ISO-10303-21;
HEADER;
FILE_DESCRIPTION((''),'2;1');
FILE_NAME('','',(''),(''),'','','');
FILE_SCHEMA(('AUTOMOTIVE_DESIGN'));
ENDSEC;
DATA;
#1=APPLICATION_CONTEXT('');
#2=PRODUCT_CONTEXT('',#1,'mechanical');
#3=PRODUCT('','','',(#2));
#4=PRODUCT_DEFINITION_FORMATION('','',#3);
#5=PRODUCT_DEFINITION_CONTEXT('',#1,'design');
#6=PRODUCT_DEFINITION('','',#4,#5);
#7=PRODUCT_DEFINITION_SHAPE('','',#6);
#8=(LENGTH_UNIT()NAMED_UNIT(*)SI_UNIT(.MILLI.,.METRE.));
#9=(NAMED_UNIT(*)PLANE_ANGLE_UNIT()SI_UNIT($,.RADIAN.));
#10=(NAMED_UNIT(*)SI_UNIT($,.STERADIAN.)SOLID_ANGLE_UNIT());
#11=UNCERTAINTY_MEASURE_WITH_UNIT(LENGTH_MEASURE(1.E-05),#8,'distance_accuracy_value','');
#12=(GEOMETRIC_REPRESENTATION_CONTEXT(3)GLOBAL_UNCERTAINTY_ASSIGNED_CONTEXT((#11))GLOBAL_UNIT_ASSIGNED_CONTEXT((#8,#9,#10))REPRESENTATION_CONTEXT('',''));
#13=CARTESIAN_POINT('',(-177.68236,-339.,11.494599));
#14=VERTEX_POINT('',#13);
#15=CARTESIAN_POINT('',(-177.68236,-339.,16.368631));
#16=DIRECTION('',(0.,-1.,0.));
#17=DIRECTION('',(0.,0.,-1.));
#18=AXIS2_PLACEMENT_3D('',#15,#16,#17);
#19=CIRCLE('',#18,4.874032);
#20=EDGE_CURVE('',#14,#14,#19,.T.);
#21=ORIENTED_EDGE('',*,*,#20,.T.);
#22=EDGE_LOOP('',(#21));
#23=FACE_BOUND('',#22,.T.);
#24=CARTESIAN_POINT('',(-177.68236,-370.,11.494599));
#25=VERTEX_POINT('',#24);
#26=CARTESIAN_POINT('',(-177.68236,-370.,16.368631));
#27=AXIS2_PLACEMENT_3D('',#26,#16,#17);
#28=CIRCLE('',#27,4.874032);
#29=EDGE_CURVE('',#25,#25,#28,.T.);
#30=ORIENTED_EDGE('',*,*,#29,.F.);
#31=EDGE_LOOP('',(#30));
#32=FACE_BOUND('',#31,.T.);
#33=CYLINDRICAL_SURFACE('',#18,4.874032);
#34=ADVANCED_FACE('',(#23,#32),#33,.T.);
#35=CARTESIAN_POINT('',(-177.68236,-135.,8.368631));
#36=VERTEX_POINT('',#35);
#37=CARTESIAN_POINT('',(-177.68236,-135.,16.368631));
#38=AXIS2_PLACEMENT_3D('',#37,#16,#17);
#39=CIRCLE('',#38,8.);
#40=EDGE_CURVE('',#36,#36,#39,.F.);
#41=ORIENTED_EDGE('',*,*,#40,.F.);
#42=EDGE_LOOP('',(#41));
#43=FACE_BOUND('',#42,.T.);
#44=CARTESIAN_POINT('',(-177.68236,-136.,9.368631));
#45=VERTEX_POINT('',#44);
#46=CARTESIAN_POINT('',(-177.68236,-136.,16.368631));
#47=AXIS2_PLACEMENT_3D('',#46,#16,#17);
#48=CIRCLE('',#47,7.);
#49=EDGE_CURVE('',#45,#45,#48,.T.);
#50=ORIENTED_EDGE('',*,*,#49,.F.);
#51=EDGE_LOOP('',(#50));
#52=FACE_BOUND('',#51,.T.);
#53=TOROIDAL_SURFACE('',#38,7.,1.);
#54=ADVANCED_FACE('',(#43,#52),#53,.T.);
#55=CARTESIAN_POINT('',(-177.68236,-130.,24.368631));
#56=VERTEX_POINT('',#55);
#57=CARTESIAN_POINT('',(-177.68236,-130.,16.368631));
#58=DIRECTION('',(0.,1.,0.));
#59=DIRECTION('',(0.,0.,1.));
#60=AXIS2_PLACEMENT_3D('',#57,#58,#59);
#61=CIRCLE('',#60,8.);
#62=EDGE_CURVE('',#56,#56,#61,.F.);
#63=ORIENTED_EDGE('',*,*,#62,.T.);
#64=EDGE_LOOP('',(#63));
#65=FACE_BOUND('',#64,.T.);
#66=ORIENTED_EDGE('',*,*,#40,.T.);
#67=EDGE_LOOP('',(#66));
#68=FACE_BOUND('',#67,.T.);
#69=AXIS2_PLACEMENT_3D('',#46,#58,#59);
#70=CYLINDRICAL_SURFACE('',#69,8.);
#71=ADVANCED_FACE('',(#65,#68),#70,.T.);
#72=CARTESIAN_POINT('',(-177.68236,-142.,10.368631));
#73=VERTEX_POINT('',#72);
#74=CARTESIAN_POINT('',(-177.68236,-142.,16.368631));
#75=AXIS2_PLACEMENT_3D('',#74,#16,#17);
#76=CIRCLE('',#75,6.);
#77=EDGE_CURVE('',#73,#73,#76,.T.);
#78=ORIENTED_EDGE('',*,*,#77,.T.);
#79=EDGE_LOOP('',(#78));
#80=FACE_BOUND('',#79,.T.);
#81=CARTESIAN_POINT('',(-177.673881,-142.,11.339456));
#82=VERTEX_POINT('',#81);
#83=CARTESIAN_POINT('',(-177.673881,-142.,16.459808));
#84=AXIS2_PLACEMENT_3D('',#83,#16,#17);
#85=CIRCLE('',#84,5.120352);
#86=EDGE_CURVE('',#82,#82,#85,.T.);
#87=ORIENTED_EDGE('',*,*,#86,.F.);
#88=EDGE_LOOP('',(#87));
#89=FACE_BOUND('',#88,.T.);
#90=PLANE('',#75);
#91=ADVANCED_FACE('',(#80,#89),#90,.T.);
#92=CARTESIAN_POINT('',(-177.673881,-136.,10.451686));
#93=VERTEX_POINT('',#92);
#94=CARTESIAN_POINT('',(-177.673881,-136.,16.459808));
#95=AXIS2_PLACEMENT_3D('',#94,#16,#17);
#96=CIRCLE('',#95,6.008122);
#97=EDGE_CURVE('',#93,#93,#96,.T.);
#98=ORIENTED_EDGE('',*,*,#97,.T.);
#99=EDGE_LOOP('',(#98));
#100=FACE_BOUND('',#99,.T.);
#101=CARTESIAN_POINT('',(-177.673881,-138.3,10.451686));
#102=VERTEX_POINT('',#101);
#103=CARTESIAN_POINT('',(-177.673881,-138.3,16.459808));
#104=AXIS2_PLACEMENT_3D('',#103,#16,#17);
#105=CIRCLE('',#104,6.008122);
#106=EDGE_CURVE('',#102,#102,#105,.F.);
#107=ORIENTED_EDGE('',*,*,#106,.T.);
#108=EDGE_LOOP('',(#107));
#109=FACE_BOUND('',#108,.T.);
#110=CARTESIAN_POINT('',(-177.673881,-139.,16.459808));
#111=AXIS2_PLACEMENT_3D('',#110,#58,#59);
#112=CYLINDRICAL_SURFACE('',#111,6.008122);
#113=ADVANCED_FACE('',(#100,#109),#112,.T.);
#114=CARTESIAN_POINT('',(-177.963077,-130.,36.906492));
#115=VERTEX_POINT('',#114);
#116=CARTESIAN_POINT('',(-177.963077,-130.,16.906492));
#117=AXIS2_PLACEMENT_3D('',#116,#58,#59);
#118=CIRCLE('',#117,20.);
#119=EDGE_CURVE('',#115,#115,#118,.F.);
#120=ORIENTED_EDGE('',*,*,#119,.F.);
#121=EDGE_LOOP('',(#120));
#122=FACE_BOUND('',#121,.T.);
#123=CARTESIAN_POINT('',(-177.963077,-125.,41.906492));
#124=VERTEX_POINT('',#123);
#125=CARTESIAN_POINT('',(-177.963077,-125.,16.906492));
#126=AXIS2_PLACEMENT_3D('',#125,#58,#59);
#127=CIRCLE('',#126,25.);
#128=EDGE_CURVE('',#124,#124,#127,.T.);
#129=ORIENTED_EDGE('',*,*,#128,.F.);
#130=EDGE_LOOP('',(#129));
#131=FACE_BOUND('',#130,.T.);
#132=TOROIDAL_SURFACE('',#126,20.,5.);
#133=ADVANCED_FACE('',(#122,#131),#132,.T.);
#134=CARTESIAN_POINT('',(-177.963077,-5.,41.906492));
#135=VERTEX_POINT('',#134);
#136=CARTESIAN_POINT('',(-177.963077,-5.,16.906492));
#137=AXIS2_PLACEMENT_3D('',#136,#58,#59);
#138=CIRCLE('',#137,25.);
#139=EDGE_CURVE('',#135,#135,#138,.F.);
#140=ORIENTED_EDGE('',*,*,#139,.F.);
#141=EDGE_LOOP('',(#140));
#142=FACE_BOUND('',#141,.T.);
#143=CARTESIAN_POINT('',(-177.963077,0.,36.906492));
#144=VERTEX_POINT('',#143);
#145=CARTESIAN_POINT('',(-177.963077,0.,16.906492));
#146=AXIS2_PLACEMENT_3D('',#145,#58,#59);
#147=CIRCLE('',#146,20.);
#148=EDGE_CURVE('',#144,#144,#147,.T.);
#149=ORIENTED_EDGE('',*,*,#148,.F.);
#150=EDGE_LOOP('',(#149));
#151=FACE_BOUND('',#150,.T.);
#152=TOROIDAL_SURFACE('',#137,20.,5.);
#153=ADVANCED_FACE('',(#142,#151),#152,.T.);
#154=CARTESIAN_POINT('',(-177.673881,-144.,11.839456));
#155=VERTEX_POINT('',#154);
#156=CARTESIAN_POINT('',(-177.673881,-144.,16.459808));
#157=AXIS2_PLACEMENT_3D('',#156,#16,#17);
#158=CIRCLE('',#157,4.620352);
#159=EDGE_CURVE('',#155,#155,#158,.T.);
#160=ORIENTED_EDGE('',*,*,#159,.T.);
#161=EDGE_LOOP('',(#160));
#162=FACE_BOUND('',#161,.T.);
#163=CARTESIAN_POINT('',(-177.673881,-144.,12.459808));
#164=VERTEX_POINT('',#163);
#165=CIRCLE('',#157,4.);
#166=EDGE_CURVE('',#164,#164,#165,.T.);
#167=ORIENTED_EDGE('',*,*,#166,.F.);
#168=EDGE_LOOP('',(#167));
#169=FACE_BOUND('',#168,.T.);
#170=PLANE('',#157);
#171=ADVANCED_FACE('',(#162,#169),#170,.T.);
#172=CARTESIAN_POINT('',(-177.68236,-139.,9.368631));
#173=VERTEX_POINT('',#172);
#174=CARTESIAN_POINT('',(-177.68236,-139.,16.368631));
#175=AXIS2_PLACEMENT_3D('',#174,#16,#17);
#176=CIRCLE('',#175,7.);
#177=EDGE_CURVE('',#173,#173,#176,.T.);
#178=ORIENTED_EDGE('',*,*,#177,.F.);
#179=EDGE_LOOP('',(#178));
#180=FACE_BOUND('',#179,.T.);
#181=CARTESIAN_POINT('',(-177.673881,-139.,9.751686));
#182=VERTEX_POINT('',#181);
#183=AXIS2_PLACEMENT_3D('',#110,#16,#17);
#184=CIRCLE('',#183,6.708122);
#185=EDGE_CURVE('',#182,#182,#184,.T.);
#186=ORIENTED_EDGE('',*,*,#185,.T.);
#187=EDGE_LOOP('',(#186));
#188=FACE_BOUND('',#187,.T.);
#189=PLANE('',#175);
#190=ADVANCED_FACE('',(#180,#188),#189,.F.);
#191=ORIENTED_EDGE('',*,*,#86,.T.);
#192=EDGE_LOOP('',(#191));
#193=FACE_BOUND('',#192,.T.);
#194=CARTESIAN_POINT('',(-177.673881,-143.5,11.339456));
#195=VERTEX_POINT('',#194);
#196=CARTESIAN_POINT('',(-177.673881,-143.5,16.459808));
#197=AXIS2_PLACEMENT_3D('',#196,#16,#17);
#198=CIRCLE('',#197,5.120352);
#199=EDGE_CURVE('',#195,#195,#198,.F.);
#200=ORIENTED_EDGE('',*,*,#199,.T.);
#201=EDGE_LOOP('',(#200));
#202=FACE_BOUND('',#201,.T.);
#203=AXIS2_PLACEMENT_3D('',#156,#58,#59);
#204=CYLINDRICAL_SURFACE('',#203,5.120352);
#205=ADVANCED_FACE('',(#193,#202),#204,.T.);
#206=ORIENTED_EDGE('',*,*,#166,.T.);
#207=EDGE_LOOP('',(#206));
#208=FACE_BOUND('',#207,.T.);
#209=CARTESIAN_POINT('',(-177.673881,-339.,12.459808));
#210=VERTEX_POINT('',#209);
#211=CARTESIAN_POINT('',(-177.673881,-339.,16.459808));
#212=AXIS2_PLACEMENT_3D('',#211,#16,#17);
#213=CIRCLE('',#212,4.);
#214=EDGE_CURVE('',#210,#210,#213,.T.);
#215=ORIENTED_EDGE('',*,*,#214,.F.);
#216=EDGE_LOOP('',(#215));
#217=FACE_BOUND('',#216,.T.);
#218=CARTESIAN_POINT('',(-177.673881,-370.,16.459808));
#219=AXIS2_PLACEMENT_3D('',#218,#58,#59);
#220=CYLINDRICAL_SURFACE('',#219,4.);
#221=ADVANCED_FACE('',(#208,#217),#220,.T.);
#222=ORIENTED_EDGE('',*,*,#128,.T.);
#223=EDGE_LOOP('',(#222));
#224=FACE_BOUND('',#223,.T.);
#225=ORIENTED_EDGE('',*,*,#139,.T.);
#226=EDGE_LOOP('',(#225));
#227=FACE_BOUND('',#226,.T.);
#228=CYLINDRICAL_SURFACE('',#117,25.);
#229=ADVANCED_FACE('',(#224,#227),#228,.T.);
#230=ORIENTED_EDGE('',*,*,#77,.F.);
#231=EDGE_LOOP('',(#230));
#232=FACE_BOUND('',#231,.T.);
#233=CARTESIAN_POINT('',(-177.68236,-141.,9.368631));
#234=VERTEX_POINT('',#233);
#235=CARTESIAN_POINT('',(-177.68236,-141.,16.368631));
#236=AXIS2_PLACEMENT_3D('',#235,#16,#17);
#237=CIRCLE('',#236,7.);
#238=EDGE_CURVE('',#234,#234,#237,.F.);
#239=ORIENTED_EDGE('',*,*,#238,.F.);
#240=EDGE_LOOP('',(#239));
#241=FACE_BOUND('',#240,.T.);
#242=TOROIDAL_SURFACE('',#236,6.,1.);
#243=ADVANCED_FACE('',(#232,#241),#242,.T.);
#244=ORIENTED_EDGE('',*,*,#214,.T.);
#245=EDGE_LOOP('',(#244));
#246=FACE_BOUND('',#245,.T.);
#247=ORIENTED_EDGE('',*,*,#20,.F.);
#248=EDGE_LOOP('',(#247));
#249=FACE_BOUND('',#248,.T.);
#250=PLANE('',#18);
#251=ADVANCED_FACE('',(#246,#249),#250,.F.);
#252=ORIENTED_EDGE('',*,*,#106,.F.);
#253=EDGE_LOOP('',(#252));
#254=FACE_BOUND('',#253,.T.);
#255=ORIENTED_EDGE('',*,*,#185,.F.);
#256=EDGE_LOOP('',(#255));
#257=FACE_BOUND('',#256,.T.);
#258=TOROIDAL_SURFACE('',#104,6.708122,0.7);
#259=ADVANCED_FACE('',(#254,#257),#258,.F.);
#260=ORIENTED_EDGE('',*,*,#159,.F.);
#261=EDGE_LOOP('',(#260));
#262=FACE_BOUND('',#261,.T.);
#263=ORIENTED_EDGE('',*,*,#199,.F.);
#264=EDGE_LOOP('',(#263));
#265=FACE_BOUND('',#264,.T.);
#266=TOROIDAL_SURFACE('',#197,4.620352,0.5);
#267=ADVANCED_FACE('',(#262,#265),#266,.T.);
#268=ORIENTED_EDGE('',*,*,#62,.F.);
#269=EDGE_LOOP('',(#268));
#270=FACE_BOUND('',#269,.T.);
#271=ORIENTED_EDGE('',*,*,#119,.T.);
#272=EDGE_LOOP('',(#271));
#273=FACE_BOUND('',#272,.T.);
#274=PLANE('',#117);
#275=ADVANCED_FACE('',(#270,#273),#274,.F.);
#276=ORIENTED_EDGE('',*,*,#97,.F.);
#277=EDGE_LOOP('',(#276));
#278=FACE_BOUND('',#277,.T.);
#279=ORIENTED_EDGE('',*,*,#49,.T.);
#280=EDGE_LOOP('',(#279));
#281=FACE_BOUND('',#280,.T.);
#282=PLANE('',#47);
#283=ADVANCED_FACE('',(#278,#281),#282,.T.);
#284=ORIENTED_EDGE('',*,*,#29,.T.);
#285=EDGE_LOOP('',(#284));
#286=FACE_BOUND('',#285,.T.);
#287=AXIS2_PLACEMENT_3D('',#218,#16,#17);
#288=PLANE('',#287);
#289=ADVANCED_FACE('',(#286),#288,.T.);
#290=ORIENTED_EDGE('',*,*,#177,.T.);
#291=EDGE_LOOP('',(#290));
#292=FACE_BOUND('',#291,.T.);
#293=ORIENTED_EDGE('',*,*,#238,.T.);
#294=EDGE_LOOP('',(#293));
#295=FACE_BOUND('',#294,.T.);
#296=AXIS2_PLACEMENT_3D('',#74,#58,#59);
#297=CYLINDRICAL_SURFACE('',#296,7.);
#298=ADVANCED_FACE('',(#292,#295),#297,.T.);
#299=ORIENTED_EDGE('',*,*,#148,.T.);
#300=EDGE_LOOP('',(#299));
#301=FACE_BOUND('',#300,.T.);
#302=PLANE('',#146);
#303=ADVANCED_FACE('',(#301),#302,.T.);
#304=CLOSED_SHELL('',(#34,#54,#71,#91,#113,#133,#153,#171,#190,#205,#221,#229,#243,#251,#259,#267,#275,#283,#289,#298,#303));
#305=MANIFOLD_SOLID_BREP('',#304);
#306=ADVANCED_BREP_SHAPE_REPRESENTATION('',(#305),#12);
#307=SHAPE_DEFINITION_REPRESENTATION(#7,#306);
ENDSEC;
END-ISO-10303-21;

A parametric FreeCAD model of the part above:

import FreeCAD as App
import Part
import Sketcher
from FreeCAD import Vector


def edges_at(feature, points):
    """Names of the edges that pass closest to the given points."""
    edges = feature.Shape.Edges
    near = lambda p: min(range(len(edges)), key=lambda i: edges[i].distToShape(Part.Vertex(*p))[0])
    return sorted({f"Edge{near(p) + 1}" for p in points})

doc = App.newDocument("Part")
body = doc.addObject("PartDesign::Body", "Body")

# Sketch on XZ plane
sketch1 = doc.addObject("Sketcher::SketchObject", "Sketch")
body.addObject(sketch1)
sketch1.AttachmentSupport = (doc.XZ_Plane, [""])
sketch1.MapMode = "FlatFace"
sketch1.addGeometry(Part.Circle(Vector(-178, 17, 0), Vector(0, 0, 1), 25), False)
sketch1.addConstraint(Sketcher.Constraint("Diameter", 0, 50.0))
sketch1.addConstraint(Sketcher.Constraint("DistanceX", 0, 3, -1, 1, 177.963077))
sketch1.addConstraint(Sketcher.Constraint("DistanceY", -1, 1, 0, 3, 16.906492))
pad1 = doc.addObject("PartDesign::Pad", "Pad")
body.addObject(pad1)
pad1.Profile = sketch1
pad1.Length = 130

# Sketch on XZ plane
sketch2 = doc.addObject("Sketcher::SketchObject", "Sketch001")
body.addObject(sketch2)
sketch2.AttachmentSupport = (doc.XZ_Plane, [""])
sketch2.MapMode = "FlatFace"
sketch2.AttachmentOffset = App.Placement(Vector(0, 0, 130), App.Rotation())
sketch2.addGeometry(Part.Circle(Vector(-177.7, 16.5, 0), Vector(0, 0, 1), 4), False)
sketch2.addConstraint(Sketcher.Constraint("Diameter", 0, 8.0))
sketch2.addConstraint(Sketcher.Constraint("DistanceX", 0, 3, -1, 1, 177.673881))
sketch2.addConstraint(Sketcher.Constraint("DistanceY", -1, 1, 0, 3, 16.459808))
pad2 = doc.addObject("PartDesign::Pad", "Pad001")
body.addObject(pad2)
pad2.Profile = sketch2
pad2.Length = 240
doc.recompute()

fillet = doc.addObject("PartDesign::Fillet", "Fillet")
body.addObject(fillet)
fillet.Base = (pad2, edges_at(pad2, [(-177.963, 0, -8.094), (-177.963, -130, -8.094)]))
fillet.Radius = 5

# Sketch on XZ plane
sketch3 = doc.addObject("Sketcher::SketchObject", "Sketch002")
body.addObject(sketch3)
sketch3.AttachmentSupport = (doc.XZ_Plane, [""])
sketch3.MapMode = "FlatFace"
sketch3.AttachmentOffset = App.Placement(Vector(0, 0, 370), App.Rotation())
sketch3.addGeometry(Part.Circle(Vector(-177.7, 16.5, 0), Vector(0, 0, 1), 1.5), False)
sketch3.addConstraint(Sketcher.Constraint("Diameter", 0, 2.90776))
sketch3.addConstraint(Sketcher.Constraint("DistanceX", 0, 3, -1, 1, 177.696829))
sketch3.addConstraint(Sketcher.Constraint("DistanceY", -1, 1, 0, 3, 16.52931))
pad3 = doc.addObject("PartDesign::Pad", "Pad002")
body.addObject(pad3)
pad3.Profile = sketch3
pad3.Length = 11
pad3.Reversed = True

# Sketch on XZ plane
sketch4 = doc.addObject("Sketcher::SketchObject", "Sketch003")
body.addObject(sketch4)
sketch4.AttachmentSupport = (doc.XZ_Plane, [""])
sketch4.MapMode = "FlatFace"
sketch4.AttachmentOffset = App.Placement(Vector(0, 0, 370), App.Rotation())
sketch4.addGeometry(Part.Circle(Vector(-177.7, 16.4, 0), Vector(0, 0, 1), 4.9), False)
sketch4.addConstraint(Sketcher.Constraint("Diameter", 0, 9.748063))
sketch4.addConstraint(Sketcher.Constraint("DistanceX", 0, 3, -1, 1, 177.68236))
sketch4.addConstraint(Sketcher.Constraint("DistanceY", -1, 1, 0, 3, 16.368631))
pad4 = doc.addObject("PartDesign::Pad", "Pad003")
body.addObject(pad4)
pad4.Profile = sketch4
pad4.Length = 31
pad4.Reversed = True

# Sketch on XZ plane
sketch5 = doc.addObject("Sketcher::SketchObject", "Sketch004")
body.addObject(sketch5)
sketch5.AttachmentSupport = (doc.XZ_Plane, [""])
sketch5.MapMode = "FlatFace"
sketch5.AttachmentOffset = App.Placement(Vector(0, 0, 130), App.Rotation())
sketch5.addGeometry(Part.Circle(Vector(-178, 16, 0), Vector(0, 0, 1), 8), False)
sketch5.addConstraint(Sketcher.Constraint("Diameter", 0, 16.0))
sketch5.addConstraint(Sketcher.Constraint("DistanceX", 0, 3, -1, 1, 177.68236))
sketch5.addConstraint(Sketcher.Constraint("DistanceY", -1, 1, 0, 3, 16.368631))
pad5 = doc.addObject("PartDesign::Pad", "Pad004")
body.addObject(pad5)
pad5.Profile = sketch5
pad5.Length = 6

# Sketch on XZ plane
sketch6 = doc.addObject("Sketcher::SketchObject", "Sketch005")
body.addObject(sketch6)
sketch6.AttachmentSupport = (doc.XZ_Plane, [""])
sketch6.MapMode = "FlatFace"
sketch6.AttachmentOffset = App.Placement(Vector(0, 0, 136), App.Rotation())
sketch6.addGeometry(Part.Circle(Vector(-178, 16, 0), Vector(0, 0, 1), 6), False)
sketch6.addConstraint(Sketcher.Constraint("Diameter", 0, 12.016244))
sketch6.addConstraint(Sketcher.Constraint("DistanceX", 0, 3, -1, 1, 177.673881))
sketch6.addConstraint(Sketcher.Constraint("DistanceY", -1, 1, 0, 3, 16.459808))
pad6 = doc.addObject("PartDesign::Pad", "Pad005")
body.addObject(pad6)
pad6.Profile = sketch6
pad6.Length = 3

# Sketch on XZ plane
sketch7 = doc.addObject("Sketcher::SketchObject", "Sketch006")
body.addObject(sketch7)
sketch7.AttachmentSupport = (doc.XZ_Plane, [""])
sketch7.MapMode = "FlatFace"
sketch7.AttachmentOffset = App.Placement(Vector(0, 0, 139), App.Rotation())
sketch7.addGeometry(Part.Circle(Vector(-178, 16, 0), Vector(0, 0, 1), 7), False)
sketch7.addConstraint(Sketcher.Constraint("Diameter", 0, 14.0))
sketch7.addConstraint(Sketcher.Constraint("DistanceX", 0, 3, -1, 1, 177.68236))
sketch7.addConstraint(Sketcher.Constraint("DistanceY", -1, 1, 0, 3, 16.368631))
pad7 = doc.addObject("PartDesign::Pad", "Pad006")
body.addObject(pad7)
pad7.Profile = sketch7
pad7.Length = 3

# Sketch on XZ plane
sketch8 = doc.addObject("Sketcher::SketchObject", "Sketch007")
body.addObject(sketch8)
sketch8.AttachmentSupport = (doc.XZ_Plane, [""])
sketch8.MapMode = "FlatFace"
sketch8.AttachmentOffset = App.Placement(Vector(0, 0, 142), App.Rotation())
sketch8.addGeometry(Part.Circle(Vector(-178, 16, 0), Vector(0, 0, 1), 5), False)
sketch8.addConstraint(Sketcher.Constraint("Diameter", 0, 10.240703))
sketch8.addConstraint(Sketcher.Constraint("DistanceX", 0, 3, -1, 1, 177.673881))
sketch8.addConstraint(Sketcher.Constraint("DistanceY", -1, 1, 0, 3, 16.459808))
pad8 = doc.addObject("PartDesign::Pad", "Pad007")
body.addObject(pad8)
pad8.Profile = sketch8
pad8.Length = 2
doc.recompute()

fillet2 = doc.addObject("PartDesign::Fillet", "Fillet001")
body.addObject(fillet2)
fillet2.Base = (pad8, edges_at(pad8, [(-177.682, -136, 8.369), (-177.682, -142, 23.369)]))
fillet2.Radius = 1
doc.recompute()

fillet3 = doc.addObject("PartDesign::Fillet", "Fillet002")
body.addObject(fillet3)
fillet3.Base = (fillet2, edges_at(fillet2, [(-177.674, -139, 22.468)]))
fillet3.Radius = 0.7
doc.recompute()

fillet4 = doc.addObject("PartDesign::Fillet", "Fillet003")
body.addObject(fillet4)
fillet4.Base = (fillet3, edges_at(fillet3, [(-177.674, -144, 21.58)]))
fillet4.Radius = 0.5

doc.recompute()
